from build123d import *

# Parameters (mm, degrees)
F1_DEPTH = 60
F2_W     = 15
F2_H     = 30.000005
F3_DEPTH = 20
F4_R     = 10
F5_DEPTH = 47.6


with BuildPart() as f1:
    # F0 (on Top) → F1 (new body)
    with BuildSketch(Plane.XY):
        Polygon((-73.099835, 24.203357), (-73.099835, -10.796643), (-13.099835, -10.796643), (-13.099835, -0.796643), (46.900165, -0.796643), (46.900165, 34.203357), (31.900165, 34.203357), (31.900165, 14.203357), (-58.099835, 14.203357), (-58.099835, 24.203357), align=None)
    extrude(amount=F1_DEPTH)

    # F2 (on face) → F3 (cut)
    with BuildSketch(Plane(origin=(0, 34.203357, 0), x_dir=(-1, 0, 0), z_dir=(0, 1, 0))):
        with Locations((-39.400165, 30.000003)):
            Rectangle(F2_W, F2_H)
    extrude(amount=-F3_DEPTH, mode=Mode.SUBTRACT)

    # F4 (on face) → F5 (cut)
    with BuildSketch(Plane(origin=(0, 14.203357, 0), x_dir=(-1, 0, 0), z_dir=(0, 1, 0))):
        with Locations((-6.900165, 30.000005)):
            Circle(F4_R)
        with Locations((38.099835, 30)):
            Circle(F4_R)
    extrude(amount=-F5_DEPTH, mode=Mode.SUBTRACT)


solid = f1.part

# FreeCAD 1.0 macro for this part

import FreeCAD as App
import Part
import Sketcher
from FreeCAD import Vector


def add_polygon(sketch, points):
    """Adds a closed chain of lines whose ends are joined by coincident constraints."""
    first, n = sketch.GeometryCount, len(points)
    for a, b in zip(points, points[1:] + points[:1]):
        sketch.addGeometry(Part.LineSegment(App.Vector(*a, 0), App.Vector(*b, 0)), False)
    for i in range(n):
        sketch.addConstraint(Sketcher.Constraint("Coincident", first + i, 2, first + (i + 1) % n, 1))

doc = App.newDocument("Part")
body = doc.addObject("PartDesign::Body", "Body")

# Sketch on XY plane
sketch1 = body.newObject("Sketcher::SketchObject", "Sketch")
sketch1.AttachmentSupport = (doc.getObject("XY_Plane"), [""])
sketch1.MapMode = "FlatFace"
add_polygon(sketch1, [(-73, 24), (-73, -11), (-13, -11), (-13, -1), (47, -1), (47, 34), (32, 34), (32, 14), (-58, 14), (-58, 24)])  # lines 0-9
sketch1.addConstraint([
    Sketcher.Constraint("Vertical", 0),
    Sketcher.Constraint("Horizontal", 1),
    Sketcher.Constraint("Vertical", 2),
    Sketcher.Constraint("Horizontal", 3),
    Sketcher.Constraint("Vertical", 4),
    Sketcher.Constraint("Horizontal", 5),
    Sketcher.Constraint("Vertical", 6),
    Sketcher.Constraint("Horizontal", 7),
    Sketcher.Constraint("Vertical", 8),
    Sketcher.Constraint("Horizontal", 9),
    Sketcher.Constraint("Equal", 1, 3),
    Sketcher.Constraint("Equal", 5, 9),
    Sketcher.Constraint("Equal", 0, 4),
    Sketcher.Constraint("Equal", 2, 8),
    Sketcher.Constraint("DistanceX", 1, 1, 1, 2, 60.0),
    Sketcher.Constraint("DistanceX", 5, 2, 5, 1, 15.0),
    Sketcher.Constraint("DistanceY", 0, 2, 0, 1, 35.0),
    Sketcher.Constraint("DistanceY", 2, 1, 2, 2, 10.0),
    Sketcher.Constraint("DistanceX", 0, 2, -1, 1, 73.099835),
    Sketcher.Constraint("DistanceY", 0, 2, -1, 1, 10.796643),
])
pad1 = body.newObject("PartDesign::Pad", "Pad")
pad1.Profile = sketch1
pad1.Length = 60

# Sketch on XZ plane
sketch2 = body.newObject("Sketcher::SketchObject", "Sketch001")
sketch2.AttachmentSupport = (doc.getObject("XZ_Plane"), [""])
sketch2.MapMode = "FlatFace"
sketch2.AttachmentOffset = App.Placement(Vector(0, 0, -34.203357), App.Rotation())
add_polygon(sketch2, [(47, 45), (47, 15), (32, 15), (32, 45)])  # lines 0-3
sketch2.addConstraint([
    Sketcher.Constraint("Vertical", 0),
    Sketcher.Constraint("Horizontal", 1),
    Sketcher.Constraint("Vertical", 2),
    Sketcher.Constraint("Horizontal", 3),
    Sketcher.Constraint("DistanceX", 1, 2, 1, 1, 15.0),
    Sketcher.Constraint("DistanceY", -1, 1, 0, 2, 15.000001),
    Sketcher.Constraint("DistanceY", 0, 2, 0, 1, 30.000005),
    Sketcher.Constraint("DistanceX", -1, 1, 0, 2, 46.900165),
])
pocket1 = body.newObject("PartDesign::Pocket", "Pocket")
pocket1.Profile = sketch2
pocket1.Length = 20
pocket1.Reversed = True

# Sketch on XZ plane
sketch3 = body.newObject("Sketcher::SketchObject", "Sketch002")
sketch3.AttachmentSupport = (doc.getObject("XZ_Plane"), [""])
sketch3.MapMode = "FlatFace"
sketch3.AttachmentOffset = App.Placement(Vector(0, 0, -14.203357), App.Rotation())
sketch3.addGeometry([
    Part.Circle(Vector(7, 30, 0), Vector(0, 0, 1), 10),
    Part.Circle(Vector(-38, 30, 0), Vector(0, 0, 1), 10),
], False)
sketch3.addConstraint([
    Sketcher.Constraint("Equal", 0, 1),
    Sketcher.Constraint("Diameter", 0, 20.0),
    Sketcher.Constraint("DistanceY", -1, 1, 1, 3, 30.0),
    Sketcher.Constraint("DistanceX", 1, 3, 0, 3, 45.0),
    Sketcher.Constraint("DistanceX", -1, 1, 0, 3, 6.900165),
    Sketcher.Constraint("DistanceY", -1, 1, 0, 3, 30.000005),
])
pocket2 = body.newObject("PartDesign::Pocket", "Pocket001")
pocket2.Profile = sketch3
pocket2.Length = 47.6
pocket2.Reversed = True

doc.recompute()
